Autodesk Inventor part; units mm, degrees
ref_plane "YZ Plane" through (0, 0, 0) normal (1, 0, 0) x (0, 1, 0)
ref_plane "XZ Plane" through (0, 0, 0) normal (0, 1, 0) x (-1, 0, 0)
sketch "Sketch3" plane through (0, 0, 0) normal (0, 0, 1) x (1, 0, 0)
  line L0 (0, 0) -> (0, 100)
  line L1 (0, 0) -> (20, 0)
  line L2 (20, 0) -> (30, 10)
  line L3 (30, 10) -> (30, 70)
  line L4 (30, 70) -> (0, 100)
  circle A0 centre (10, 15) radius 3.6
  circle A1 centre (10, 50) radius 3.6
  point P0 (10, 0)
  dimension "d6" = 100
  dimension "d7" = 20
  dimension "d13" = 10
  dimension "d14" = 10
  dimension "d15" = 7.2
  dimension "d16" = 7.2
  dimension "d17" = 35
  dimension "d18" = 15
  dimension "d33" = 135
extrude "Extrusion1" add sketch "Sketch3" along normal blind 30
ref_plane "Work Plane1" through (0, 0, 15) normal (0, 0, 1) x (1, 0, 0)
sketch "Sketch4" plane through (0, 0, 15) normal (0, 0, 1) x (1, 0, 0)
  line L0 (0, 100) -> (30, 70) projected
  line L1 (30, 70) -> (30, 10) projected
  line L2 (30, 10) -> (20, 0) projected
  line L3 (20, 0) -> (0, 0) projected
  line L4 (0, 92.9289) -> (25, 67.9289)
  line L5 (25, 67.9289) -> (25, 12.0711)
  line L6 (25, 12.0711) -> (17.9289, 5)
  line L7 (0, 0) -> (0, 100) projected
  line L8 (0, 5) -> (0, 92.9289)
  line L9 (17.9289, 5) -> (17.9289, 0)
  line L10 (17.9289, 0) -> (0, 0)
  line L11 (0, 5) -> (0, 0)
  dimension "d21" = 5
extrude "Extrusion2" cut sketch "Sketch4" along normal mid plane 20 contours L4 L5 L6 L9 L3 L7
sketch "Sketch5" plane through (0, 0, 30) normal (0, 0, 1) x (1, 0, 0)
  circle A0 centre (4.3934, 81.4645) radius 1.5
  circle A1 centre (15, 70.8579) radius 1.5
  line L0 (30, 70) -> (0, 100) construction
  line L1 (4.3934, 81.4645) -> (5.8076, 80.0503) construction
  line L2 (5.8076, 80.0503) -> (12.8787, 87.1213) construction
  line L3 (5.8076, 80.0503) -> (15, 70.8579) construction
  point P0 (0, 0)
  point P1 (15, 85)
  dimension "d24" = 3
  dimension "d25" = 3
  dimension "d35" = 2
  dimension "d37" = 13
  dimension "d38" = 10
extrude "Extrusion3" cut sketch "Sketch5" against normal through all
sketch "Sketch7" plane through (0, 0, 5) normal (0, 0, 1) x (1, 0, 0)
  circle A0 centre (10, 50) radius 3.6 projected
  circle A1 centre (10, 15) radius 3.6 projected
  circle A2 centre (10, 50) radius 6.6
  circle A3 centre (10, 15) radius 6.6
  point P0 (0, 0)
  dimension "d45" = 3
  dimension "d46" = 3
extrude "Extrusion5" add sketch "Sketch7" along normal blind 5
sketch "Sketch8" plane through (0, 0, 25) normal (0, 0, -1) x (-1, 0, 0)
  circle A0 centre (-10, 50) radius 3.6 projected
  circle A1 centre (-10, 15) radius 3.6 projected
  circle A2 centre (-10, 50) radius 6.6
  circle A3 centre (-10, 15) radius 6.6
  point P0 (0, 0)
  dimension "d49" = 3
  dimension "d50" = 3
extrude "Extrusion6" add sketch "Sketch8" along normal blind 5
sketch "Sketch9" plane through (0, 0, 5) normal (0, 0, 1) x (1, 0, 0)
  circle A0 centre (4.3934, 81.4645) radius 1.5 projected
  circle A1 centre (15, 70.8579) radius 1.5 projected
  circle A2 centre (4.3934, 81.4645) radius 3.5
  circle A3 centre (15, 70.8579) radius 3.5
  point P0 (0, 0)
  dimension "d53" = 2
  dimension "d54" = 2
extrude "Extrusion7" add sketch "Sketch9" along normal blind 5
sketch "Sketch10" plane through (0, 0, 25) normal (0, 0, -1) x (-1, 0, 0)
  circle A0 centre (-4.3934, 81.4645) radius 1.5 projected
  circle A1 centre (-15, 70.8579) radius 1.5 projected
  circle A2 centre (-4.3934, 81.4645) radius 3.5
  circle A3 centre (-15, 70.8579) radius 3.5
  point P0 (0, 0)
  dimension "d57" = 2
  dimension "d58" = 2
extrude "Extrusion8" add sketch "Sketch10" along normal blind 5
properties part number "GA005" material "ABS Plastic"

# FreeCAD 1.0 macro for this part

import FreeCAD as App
import Part
import Sketcher
from FreeCAD import Vector
Q = App.Units.Quantity

doc = App.newDocument("Part")
params = doc.addObject("Spreadsheet::Sheet", "Params")
for row, (alias, value) in enumerate([
    ("sketch1_diameter", "7.2 mm"),
    ("sketch1_width", "20 mm"),
    ("sketch1_height", "100 mm"),
    ("pad1_length", "30 mm"),
    ("sketch2_height", "5 mm"),
    ("sketch2_length", "10 mm"),
    ("pocket1_length", "20 mm"),
    ("sketch3_diameter", "3 mm"),
    ("sketch4_diameter", "13.2 mm"),
    ("sketch4_diameter2", "7.2 mm"),
    ("pad2_length", "5 mm"),
    ("sketch5_diameter", "13.2 mm"),
    ("sketch5_diameter2", "7.2 mm"),
    ("pad3_length", "5 mm"),
    ("sketch6_diameter", "7 mm"),
    ("sketch6_diameter2", "3 mm"),
    ("pad4_length", "5 mm"),
    ("sketch7_diameter", "7 mm"),
    ("sketch7_diameter2", "3 mm"),
    ("pad5_length", "5 mm"),
], start=1):
    params.set(f"A{row}", alias)
    params.set(f"B{row}", "=" + value)
    params.setAlias(f"B{row}", alias)

body = doc.addObject("PartDesign::Body", "Body")

sketch1 = body.newObject("Sketcher::SketchObject", "Sketch")
sketch1.AttachmentSupport = (doc.getObject("XY_Plane"), [""])
sketch1.MapMode = "FlatFace"
sketch1.addGeometry([
    Part.LineSegment(Vector(0, 100, 0), Vector(0, 0, 0)),
    Part.LineSegment(Vector(0, 0, 0), Vector(20, 0, 0)),
    Part.LineSegment(Vector(20, 0, 0), Vector(30, 10, 0)),
    Part.LineSegment(Vector(30, 10, 0), Vector(30, 70, 0)),
    Part.LineSegment(Vector(30, 70, 0), Vector(0, 100, 0)),
    Part.Circle(Vector(10, 15, 0), Vector(0, 0, 1), 3.6),
    Part.Circle(Vector(10, 50, 0), Vector(0, 0, 1), 3.6),
], False)
sketch1.addConstraint([
    Sketcher.Constraint("Coincident", 0, 2, 1, 1),
    Sketcher.Constraint("Coincident", 1, 2, 2, 1),
    Sketcher.Constraint("Coincident", 2, 2, 3, 1),
    Sketcher.Constraint("Coincident", 3, 2, 4, 1),
    Sketcher.Constraint("Coincident", 4, 2, 0, 1),
    Sketcher.Constraint("Vertical", 0),
    Sketcher.Constraint("Horizontal", 1),
    Sketcher.Constraint("Vertical", 3),
    Sketcher.Constraint("Coincident", 0, 2, -1, 1),
    Sketcher.Constraint("Equal", 5, 6),
    Sketcher.Constraint("Perpendicular", 2, 4),
    Sketcher.Constraint("Vertical", 5, 3, 6, 3),
    Sketcher.Constraint("Diameter", 5, 7.2),
    Sketcher.Constraint("DistanceX", 1, 1, 1, 2, 20.0),
    Sketcher.Constraint("DistanceY", 0, 2, 0, 1, 100.0),
    Sketcher.Constraint("Angle", 4, Q("135 deg")),
    Sketcher.Constraint("DistanceX", -1, 1, 5, 3, 10.0),
    Sketcher.Constraint("DistanceY", -1, 1, 5, 3, 15.0),
    Sketcher.Constraint("DistanceY", -1, 1, 2, 2, 10.0),
    Sketcher.Constraint("DistanceY", 5, 3, 6, 3, 35.0),
])
sketch1.setExpression("Constraints[12]", "Params.sketch1_diameter")
sketch1.setExpression("Constraints[13]", "Params.sketch1_width")
sketch1.setExpression("Constraints[14]", "Params.sketch1_height")
pad1 = body.newObject("PartDesign::Pad", "Pad")
pad1.Profile = sketch1
pad1.setExpression("Length", "Params.pad1_length")

sketch2 = body.newObject("Sketcher::SketchObject", "Sketch001")
sketch2.AttachmentSupport = (doc.getObject("XY_Plane"), [""])
sketch2.MapMode = "FlatFace"
sketch2.AttachmentOffset = App.Placement(Vector(0, 0, 15), App.Rotation())
sketch2.addGeometry([
    Part.LineSegment(Vector(25, 67.9289, 0), Vector(0, 92.9289, 0)),
    Part.LineSegment(Vector(0, 92.9289, 0), Vector(0, 0, 0)),
    Part.LineSegment(Vector(0, 0, 0), Vector(17.9289, 0, 0)),
    Part.LineSegment(Vector(17.9289, 0, 0), Vector(17.9289, 5, 0)),
    Part.LineSegment(Vector(17.9289, 5, 0), Vector(25, 12.0711, 0)),
    Part.LineSegment(Vector(25, 12.0711, 0), Vector(25, 67.9289, 0)),
], False)
sketch2.addConstraint([
    Sketcher.Constraint("Coincident", 0, 2, 1, 1),
    Sketcher.Constraint("Coincident", 1, 2, 2, 1),
    Sketcher.Constraint("Coincident", 2, 2, 3, 1),
    Sketcher.Constraint("Coincident", 3, 2, 4, 1),
    Sketcher.Constraint("Coincident", 4, 2, 5, 1),
    Sketcher.Constraint("Coincident", 5, 2, 0, 1),
    Sketcher.Constraint("Vertical", 1),
    Sketcher.Constraint("Horizontal", 2),
    Sketcher.Constraint("Vertical", 3),
    Sketcher.Constraint("Vertical", 5),
    Sketcher.Constraint("Coincident", 1, 2, -1, 1),
    Sketcher.Constraint("Perpendicular", 0, 4),
    Sketcher.Constraint("DistanceY", 3, 1, 3, 2, 5.0),
    Sketcher.Constraint("Angle", 0, Q("135 deg")),
    Sketcher.Constraint("Distance", 4, 10.0),
    Sketcher.Constraint("DistanceX", -1, 1, 4, 2, 25.0),
    Sketcher.Constraint("DistanceY", 1, 2, 1, 1, 92.929),
])
sketch2.setExpression("Constraints[12]", "Params.sketch2_height")
sketch2.setExpression("Constraints[14]", "Params.sketch2_length")
pocket1 = body.newObject("PartDesign::Pocket", "Pocket")
pocket1.Profile = sketch2
pocket1.setExpression("Length", "Params.pocket1_length")
pocket1.Midplane = True

sketch3 = body.newObject("Sketcher::SketchObject", "Sketch002")
sketch3.AttachmentSupport = (doc.getObject("XY_Plane"), [""])
sketch3.MapMode = "FlatFace"
sketch3.AttachmentOffset = App.Placement(Vector(0, 0, 30), App.Rotation())
sketch3.addGeometry([
    Part.Circle(Vector(4.3934, 81.4645, 0), Vector(0, 0, 1), 1.5),
    Part.Circle(Vector(15, 70.8579, 0), Vector(0, 0, 1), 1.5),
], False)
sketch3.addConstraint([
    Sketcher.Constraint("Equal", 0, 1),
    Sketcher.Constraint("Diameter", 0, 3.0),
    Sketcher.Constraint("DistanceX", -1, 1, 1, 3, 15.0),
    Sketcher.Constraint("DistanceY", -1, 1, 1, 3, 70.858),
    Sketcher.Constraint("DistanceX", -1, 1, 0, 3, 4.3934),
    Sketcher.Constraint("DistanceY", -1, 1, 0, 3, 81.4645),
])
sketch3.setExpression("Constraints[1]", "Params.sketch3_diameter")
pocket2 = body.newObject("PartDesign::Pocket", "Pocket001")
pocket2.Profile = sketch3
pocket2.Type = "ThroughAll"

sketch4 = body.newObject("Sketcher::SketchObject", "Sketch003")
sketch4.AttachmentSupport = (doc.getObject("XY_Plane"), [""])
sketch4.MapMode = "FlatFace"
sketch4.AttachmentOffset = App.Placement(Vector(0, 0, 5), App.Rotation())
sketch4.addGeometry([
    Part.Circle(Vector(10, 50, 0), Vector(0, 0, 1), 6.6),
    Part.Circle(Vector(10, 50, 0), Vector(0, 0, 1), 3.6),
    Part.Circle(Vector(10, 15, 0), Vector(0, 0, 1), 6.6),
    Part.Circle(Vector(10, 15, 0), Vector(0, 0, 1), 3.6),
], False)
sketch4.addConstraint([
    Sketcher.Constraint("Coincident", 1, 3, 0, 3),
    Sketcher.Constraint("Coincident", 3, 3, 2, 3),
    Sketcher.Constraint("Equal", 0, 2),
    Sketcher.Constraint("Equal", 1, 3),
    Sketcher.Constraint("Vertical", 1, 3, 2, 3),
    Sketcher.Constraint("Diameter", 0, 13.2),
    Sketcher.Constraint("Diameter", 1, 7.2),
    Sketcher.Constraint("DistanceX", -1, 1, 0, 3, 10.0),
    Sketcher.Constraint("DistanceY", -1, 1, 0, 3, 50.0),
    Sketcher.Constraint("DistanceY", -1, 1, 2, 3, 15.0),
])
sketch4.setExpression("Constraints[5]", "Params.sketch4_diameter")
sketch4.setExpression("Constraints[6]", "Params.sketch4_diameter2")
pad2 = body.newObject("PartDesign::Pad", "Pad001")
pad2.Profile = sketch4
pad2.setExpression("Length", "Params.pad2_length")

sketch5 = body.newObject("Sketcher::SketchObject", "Sketch004")
sketch5.AttachmentSupport = (doc.getObject("XY_Plane"), [""])
sketch5.MapMode = "FlatFace"
sketch5.AttachmentOffset = App.Placement(Vector(0, 0, 25), App.Rotation())
sketch5.addGeometry([
    Part.Circle(Vector(10, 50, 0), Vector(0, 0, 1), 6.6),
    Part.Circle(Vector(10, 50, 0), Vector(0, 0, 1), 3.6),
    Part.Circle(Vector(10, 15, 0), Vector(0, 0, 1), 6.6),
    Part.Circle(Vector(10, 15, 0), Vector(0, 0, 1), 3.6),
], False)
sketch5.addConstraint([
    Sketcher.Constraint("Coincident", 1, 3, 0, 3),
    Sketcher.Constraint("Coincident", 3, 3, 2, 3),
    Sketcher.Constraint("Equal", 0, 2),
    Sketcher.Constraint("Equal", 1, 3),
    Sketcher.Constraint("Vertical", 1, 3, 2, 3),
    Sketcher.Constraint("Diameter", 0, 13.2),
    Sketcher.Constraint("Diameter", 1, 7.2),
    Sketcher.Constraint("DistanceX", -1, 1, 0, 3, 10.0),
    Sketcher.Constraint("DistanceY", -1, 1, 0, 3, 50.0),
    Sketcher.Constraint("DistanceY", -1, 1, 2, 3, 15.0),
])
sketch5.setExpression("Constraints[5]", "Params.sketch5_diameter")
sketch5.setExpression("Constraints[6]", "Params.sketch5_diameter2")
pad3 = body.newObject("PartDesign::Pad", "Pad002")
pad3.Profile = sketch5
pad3.setExpression("Length", "Params.pad3_length")
pad3.Reversed = True

sketch6 = body.newObject("Sketcher::SketchObject", "Sketch005")
sketch6.AttachmentSupport = (doc.getObject("XY_Plane"), [""])
sketch6.MapMode = "FlatFace"
sketch6.AttachmentOffset = App.Placement(Vector(0, 0, 5), App.Rotation())
sketch6.addGeometry([
    Part.Circle(Vector(4.3934, 81.4645, 0), Vector(0, 0, 1), 3.5),
    Part.Circle(Vector(4.3934, 81.4645, 0), Vector(0, 0, 1), 1.5),
    Part.Circle(Vector(15, 70.8579, 0), Vector(0, 0, 1), 3.5),
    Part.Circle(Vector(15, 70.8579, 0), Vector(0, 0, 1), 1.5),
], False)
sketch6.addConstraint([
    Sketcher.Constraint("Coincident", 1, 3, 0, 3),
    Sketcher.Constraint("Coincident", 3, 3, 2, 3),
    Sketcher.Constraint("Equal", 0, 2),
    Sketcher.Constraint("Equal", 1, 3),
    Sketcher.Constraint("Diameter", 0, 7.0),
    Sketcher.Constraint("Diameter", 1, 3.0),
    Sketcher.Constraint("DistanceX", -1, 1, 2, 3, 15.0),
    Sketcher.Constraint("DistanceY", -1, 1, 2, 3, 70.858),
    Sketcher.Constraint("DistanceX", -1, 1, 0, 3, 4.3934),
    Sketcher.Constraint("DistanceY", -1, 1, 0, 3, 81.4645),
])
sketch6.setExpression("Constraints[4]", "Params.sketch6_diameter")
sketch6.setExpression("Constraints[5]", "Params.sketch6_diameter2")
pad4 = body.newObject("PartDesign::Pad", "Pad003")
pad4.Profile = sketch6
pad4.setExpression("Length", "Params.pad4_length")

sketch7 = body.newObject("Sketcher::SketchObject", "Sketch006")
sketch7.AttachmentSupport = (doc.getObject("XY_Plane"), [""])
sketch7.MapMode = "FlatFace"
sketch7.AttachmentOffset = App.Placement(Vector(0, 0, 25), App.Rotation())
sketch7.addGeometry([
    Part.Circle(Vector(4.3934, 81.4645, 0), Vector(0, 0, 1), 3.5),
    Part.Circle(Vector(4.3934, 81.4645, 0), Vector(0, 0, 1), 1.5),
    Part.Circle(Vector(15, 70.8579, 0), Vector(0, 0, 1), 3.5),
    Part.Circle(Vector(15, 70.8579, 0), Vector(0, 0, 1), 1.5),
], False)
sketch7.addConstraint([
    Sketcher.Constraint("Coincident", 1, 3, 0, 3),
    Sketcher.Constraint("Coincident", 3, 3, 2, 3),
    Sketcher.Constraint("Equal", 0, 2),
    Sketcher.Constraint("Equal", 1, 3),
    Sketcher.Constraint("Diameter", 0, 7.0),
    Sketcher.Constraint("Diameter", 1, 3.0),
    Sketcher.Constraint("DistanceX", -1, 1, 2, 3, 15.0),
    Sketcher.Constraint("DistanceY", -1, 1, 2, 3, 70.858),
    Sketcher.Constraint("DistanceX", -1, 1, 0, 3, 4.3934),
    Sketcher.Constraint("DistanceY", -1, 1, 0, 3, 81.4645),
])
sketch7.setExpression("Constraints[4]", "Params.sketch7_diameter")
sketch7.setExpression("Constraints[5]", "Params.sketch7_diameter2")
pad5 = body.newObject("PartDesign::Pad", "Pad004")
pad5.Profile = sketch7
pad5.setExpression("Length", "Params.pad5_length")
pad5.Reversed = True

doc.recompute()
